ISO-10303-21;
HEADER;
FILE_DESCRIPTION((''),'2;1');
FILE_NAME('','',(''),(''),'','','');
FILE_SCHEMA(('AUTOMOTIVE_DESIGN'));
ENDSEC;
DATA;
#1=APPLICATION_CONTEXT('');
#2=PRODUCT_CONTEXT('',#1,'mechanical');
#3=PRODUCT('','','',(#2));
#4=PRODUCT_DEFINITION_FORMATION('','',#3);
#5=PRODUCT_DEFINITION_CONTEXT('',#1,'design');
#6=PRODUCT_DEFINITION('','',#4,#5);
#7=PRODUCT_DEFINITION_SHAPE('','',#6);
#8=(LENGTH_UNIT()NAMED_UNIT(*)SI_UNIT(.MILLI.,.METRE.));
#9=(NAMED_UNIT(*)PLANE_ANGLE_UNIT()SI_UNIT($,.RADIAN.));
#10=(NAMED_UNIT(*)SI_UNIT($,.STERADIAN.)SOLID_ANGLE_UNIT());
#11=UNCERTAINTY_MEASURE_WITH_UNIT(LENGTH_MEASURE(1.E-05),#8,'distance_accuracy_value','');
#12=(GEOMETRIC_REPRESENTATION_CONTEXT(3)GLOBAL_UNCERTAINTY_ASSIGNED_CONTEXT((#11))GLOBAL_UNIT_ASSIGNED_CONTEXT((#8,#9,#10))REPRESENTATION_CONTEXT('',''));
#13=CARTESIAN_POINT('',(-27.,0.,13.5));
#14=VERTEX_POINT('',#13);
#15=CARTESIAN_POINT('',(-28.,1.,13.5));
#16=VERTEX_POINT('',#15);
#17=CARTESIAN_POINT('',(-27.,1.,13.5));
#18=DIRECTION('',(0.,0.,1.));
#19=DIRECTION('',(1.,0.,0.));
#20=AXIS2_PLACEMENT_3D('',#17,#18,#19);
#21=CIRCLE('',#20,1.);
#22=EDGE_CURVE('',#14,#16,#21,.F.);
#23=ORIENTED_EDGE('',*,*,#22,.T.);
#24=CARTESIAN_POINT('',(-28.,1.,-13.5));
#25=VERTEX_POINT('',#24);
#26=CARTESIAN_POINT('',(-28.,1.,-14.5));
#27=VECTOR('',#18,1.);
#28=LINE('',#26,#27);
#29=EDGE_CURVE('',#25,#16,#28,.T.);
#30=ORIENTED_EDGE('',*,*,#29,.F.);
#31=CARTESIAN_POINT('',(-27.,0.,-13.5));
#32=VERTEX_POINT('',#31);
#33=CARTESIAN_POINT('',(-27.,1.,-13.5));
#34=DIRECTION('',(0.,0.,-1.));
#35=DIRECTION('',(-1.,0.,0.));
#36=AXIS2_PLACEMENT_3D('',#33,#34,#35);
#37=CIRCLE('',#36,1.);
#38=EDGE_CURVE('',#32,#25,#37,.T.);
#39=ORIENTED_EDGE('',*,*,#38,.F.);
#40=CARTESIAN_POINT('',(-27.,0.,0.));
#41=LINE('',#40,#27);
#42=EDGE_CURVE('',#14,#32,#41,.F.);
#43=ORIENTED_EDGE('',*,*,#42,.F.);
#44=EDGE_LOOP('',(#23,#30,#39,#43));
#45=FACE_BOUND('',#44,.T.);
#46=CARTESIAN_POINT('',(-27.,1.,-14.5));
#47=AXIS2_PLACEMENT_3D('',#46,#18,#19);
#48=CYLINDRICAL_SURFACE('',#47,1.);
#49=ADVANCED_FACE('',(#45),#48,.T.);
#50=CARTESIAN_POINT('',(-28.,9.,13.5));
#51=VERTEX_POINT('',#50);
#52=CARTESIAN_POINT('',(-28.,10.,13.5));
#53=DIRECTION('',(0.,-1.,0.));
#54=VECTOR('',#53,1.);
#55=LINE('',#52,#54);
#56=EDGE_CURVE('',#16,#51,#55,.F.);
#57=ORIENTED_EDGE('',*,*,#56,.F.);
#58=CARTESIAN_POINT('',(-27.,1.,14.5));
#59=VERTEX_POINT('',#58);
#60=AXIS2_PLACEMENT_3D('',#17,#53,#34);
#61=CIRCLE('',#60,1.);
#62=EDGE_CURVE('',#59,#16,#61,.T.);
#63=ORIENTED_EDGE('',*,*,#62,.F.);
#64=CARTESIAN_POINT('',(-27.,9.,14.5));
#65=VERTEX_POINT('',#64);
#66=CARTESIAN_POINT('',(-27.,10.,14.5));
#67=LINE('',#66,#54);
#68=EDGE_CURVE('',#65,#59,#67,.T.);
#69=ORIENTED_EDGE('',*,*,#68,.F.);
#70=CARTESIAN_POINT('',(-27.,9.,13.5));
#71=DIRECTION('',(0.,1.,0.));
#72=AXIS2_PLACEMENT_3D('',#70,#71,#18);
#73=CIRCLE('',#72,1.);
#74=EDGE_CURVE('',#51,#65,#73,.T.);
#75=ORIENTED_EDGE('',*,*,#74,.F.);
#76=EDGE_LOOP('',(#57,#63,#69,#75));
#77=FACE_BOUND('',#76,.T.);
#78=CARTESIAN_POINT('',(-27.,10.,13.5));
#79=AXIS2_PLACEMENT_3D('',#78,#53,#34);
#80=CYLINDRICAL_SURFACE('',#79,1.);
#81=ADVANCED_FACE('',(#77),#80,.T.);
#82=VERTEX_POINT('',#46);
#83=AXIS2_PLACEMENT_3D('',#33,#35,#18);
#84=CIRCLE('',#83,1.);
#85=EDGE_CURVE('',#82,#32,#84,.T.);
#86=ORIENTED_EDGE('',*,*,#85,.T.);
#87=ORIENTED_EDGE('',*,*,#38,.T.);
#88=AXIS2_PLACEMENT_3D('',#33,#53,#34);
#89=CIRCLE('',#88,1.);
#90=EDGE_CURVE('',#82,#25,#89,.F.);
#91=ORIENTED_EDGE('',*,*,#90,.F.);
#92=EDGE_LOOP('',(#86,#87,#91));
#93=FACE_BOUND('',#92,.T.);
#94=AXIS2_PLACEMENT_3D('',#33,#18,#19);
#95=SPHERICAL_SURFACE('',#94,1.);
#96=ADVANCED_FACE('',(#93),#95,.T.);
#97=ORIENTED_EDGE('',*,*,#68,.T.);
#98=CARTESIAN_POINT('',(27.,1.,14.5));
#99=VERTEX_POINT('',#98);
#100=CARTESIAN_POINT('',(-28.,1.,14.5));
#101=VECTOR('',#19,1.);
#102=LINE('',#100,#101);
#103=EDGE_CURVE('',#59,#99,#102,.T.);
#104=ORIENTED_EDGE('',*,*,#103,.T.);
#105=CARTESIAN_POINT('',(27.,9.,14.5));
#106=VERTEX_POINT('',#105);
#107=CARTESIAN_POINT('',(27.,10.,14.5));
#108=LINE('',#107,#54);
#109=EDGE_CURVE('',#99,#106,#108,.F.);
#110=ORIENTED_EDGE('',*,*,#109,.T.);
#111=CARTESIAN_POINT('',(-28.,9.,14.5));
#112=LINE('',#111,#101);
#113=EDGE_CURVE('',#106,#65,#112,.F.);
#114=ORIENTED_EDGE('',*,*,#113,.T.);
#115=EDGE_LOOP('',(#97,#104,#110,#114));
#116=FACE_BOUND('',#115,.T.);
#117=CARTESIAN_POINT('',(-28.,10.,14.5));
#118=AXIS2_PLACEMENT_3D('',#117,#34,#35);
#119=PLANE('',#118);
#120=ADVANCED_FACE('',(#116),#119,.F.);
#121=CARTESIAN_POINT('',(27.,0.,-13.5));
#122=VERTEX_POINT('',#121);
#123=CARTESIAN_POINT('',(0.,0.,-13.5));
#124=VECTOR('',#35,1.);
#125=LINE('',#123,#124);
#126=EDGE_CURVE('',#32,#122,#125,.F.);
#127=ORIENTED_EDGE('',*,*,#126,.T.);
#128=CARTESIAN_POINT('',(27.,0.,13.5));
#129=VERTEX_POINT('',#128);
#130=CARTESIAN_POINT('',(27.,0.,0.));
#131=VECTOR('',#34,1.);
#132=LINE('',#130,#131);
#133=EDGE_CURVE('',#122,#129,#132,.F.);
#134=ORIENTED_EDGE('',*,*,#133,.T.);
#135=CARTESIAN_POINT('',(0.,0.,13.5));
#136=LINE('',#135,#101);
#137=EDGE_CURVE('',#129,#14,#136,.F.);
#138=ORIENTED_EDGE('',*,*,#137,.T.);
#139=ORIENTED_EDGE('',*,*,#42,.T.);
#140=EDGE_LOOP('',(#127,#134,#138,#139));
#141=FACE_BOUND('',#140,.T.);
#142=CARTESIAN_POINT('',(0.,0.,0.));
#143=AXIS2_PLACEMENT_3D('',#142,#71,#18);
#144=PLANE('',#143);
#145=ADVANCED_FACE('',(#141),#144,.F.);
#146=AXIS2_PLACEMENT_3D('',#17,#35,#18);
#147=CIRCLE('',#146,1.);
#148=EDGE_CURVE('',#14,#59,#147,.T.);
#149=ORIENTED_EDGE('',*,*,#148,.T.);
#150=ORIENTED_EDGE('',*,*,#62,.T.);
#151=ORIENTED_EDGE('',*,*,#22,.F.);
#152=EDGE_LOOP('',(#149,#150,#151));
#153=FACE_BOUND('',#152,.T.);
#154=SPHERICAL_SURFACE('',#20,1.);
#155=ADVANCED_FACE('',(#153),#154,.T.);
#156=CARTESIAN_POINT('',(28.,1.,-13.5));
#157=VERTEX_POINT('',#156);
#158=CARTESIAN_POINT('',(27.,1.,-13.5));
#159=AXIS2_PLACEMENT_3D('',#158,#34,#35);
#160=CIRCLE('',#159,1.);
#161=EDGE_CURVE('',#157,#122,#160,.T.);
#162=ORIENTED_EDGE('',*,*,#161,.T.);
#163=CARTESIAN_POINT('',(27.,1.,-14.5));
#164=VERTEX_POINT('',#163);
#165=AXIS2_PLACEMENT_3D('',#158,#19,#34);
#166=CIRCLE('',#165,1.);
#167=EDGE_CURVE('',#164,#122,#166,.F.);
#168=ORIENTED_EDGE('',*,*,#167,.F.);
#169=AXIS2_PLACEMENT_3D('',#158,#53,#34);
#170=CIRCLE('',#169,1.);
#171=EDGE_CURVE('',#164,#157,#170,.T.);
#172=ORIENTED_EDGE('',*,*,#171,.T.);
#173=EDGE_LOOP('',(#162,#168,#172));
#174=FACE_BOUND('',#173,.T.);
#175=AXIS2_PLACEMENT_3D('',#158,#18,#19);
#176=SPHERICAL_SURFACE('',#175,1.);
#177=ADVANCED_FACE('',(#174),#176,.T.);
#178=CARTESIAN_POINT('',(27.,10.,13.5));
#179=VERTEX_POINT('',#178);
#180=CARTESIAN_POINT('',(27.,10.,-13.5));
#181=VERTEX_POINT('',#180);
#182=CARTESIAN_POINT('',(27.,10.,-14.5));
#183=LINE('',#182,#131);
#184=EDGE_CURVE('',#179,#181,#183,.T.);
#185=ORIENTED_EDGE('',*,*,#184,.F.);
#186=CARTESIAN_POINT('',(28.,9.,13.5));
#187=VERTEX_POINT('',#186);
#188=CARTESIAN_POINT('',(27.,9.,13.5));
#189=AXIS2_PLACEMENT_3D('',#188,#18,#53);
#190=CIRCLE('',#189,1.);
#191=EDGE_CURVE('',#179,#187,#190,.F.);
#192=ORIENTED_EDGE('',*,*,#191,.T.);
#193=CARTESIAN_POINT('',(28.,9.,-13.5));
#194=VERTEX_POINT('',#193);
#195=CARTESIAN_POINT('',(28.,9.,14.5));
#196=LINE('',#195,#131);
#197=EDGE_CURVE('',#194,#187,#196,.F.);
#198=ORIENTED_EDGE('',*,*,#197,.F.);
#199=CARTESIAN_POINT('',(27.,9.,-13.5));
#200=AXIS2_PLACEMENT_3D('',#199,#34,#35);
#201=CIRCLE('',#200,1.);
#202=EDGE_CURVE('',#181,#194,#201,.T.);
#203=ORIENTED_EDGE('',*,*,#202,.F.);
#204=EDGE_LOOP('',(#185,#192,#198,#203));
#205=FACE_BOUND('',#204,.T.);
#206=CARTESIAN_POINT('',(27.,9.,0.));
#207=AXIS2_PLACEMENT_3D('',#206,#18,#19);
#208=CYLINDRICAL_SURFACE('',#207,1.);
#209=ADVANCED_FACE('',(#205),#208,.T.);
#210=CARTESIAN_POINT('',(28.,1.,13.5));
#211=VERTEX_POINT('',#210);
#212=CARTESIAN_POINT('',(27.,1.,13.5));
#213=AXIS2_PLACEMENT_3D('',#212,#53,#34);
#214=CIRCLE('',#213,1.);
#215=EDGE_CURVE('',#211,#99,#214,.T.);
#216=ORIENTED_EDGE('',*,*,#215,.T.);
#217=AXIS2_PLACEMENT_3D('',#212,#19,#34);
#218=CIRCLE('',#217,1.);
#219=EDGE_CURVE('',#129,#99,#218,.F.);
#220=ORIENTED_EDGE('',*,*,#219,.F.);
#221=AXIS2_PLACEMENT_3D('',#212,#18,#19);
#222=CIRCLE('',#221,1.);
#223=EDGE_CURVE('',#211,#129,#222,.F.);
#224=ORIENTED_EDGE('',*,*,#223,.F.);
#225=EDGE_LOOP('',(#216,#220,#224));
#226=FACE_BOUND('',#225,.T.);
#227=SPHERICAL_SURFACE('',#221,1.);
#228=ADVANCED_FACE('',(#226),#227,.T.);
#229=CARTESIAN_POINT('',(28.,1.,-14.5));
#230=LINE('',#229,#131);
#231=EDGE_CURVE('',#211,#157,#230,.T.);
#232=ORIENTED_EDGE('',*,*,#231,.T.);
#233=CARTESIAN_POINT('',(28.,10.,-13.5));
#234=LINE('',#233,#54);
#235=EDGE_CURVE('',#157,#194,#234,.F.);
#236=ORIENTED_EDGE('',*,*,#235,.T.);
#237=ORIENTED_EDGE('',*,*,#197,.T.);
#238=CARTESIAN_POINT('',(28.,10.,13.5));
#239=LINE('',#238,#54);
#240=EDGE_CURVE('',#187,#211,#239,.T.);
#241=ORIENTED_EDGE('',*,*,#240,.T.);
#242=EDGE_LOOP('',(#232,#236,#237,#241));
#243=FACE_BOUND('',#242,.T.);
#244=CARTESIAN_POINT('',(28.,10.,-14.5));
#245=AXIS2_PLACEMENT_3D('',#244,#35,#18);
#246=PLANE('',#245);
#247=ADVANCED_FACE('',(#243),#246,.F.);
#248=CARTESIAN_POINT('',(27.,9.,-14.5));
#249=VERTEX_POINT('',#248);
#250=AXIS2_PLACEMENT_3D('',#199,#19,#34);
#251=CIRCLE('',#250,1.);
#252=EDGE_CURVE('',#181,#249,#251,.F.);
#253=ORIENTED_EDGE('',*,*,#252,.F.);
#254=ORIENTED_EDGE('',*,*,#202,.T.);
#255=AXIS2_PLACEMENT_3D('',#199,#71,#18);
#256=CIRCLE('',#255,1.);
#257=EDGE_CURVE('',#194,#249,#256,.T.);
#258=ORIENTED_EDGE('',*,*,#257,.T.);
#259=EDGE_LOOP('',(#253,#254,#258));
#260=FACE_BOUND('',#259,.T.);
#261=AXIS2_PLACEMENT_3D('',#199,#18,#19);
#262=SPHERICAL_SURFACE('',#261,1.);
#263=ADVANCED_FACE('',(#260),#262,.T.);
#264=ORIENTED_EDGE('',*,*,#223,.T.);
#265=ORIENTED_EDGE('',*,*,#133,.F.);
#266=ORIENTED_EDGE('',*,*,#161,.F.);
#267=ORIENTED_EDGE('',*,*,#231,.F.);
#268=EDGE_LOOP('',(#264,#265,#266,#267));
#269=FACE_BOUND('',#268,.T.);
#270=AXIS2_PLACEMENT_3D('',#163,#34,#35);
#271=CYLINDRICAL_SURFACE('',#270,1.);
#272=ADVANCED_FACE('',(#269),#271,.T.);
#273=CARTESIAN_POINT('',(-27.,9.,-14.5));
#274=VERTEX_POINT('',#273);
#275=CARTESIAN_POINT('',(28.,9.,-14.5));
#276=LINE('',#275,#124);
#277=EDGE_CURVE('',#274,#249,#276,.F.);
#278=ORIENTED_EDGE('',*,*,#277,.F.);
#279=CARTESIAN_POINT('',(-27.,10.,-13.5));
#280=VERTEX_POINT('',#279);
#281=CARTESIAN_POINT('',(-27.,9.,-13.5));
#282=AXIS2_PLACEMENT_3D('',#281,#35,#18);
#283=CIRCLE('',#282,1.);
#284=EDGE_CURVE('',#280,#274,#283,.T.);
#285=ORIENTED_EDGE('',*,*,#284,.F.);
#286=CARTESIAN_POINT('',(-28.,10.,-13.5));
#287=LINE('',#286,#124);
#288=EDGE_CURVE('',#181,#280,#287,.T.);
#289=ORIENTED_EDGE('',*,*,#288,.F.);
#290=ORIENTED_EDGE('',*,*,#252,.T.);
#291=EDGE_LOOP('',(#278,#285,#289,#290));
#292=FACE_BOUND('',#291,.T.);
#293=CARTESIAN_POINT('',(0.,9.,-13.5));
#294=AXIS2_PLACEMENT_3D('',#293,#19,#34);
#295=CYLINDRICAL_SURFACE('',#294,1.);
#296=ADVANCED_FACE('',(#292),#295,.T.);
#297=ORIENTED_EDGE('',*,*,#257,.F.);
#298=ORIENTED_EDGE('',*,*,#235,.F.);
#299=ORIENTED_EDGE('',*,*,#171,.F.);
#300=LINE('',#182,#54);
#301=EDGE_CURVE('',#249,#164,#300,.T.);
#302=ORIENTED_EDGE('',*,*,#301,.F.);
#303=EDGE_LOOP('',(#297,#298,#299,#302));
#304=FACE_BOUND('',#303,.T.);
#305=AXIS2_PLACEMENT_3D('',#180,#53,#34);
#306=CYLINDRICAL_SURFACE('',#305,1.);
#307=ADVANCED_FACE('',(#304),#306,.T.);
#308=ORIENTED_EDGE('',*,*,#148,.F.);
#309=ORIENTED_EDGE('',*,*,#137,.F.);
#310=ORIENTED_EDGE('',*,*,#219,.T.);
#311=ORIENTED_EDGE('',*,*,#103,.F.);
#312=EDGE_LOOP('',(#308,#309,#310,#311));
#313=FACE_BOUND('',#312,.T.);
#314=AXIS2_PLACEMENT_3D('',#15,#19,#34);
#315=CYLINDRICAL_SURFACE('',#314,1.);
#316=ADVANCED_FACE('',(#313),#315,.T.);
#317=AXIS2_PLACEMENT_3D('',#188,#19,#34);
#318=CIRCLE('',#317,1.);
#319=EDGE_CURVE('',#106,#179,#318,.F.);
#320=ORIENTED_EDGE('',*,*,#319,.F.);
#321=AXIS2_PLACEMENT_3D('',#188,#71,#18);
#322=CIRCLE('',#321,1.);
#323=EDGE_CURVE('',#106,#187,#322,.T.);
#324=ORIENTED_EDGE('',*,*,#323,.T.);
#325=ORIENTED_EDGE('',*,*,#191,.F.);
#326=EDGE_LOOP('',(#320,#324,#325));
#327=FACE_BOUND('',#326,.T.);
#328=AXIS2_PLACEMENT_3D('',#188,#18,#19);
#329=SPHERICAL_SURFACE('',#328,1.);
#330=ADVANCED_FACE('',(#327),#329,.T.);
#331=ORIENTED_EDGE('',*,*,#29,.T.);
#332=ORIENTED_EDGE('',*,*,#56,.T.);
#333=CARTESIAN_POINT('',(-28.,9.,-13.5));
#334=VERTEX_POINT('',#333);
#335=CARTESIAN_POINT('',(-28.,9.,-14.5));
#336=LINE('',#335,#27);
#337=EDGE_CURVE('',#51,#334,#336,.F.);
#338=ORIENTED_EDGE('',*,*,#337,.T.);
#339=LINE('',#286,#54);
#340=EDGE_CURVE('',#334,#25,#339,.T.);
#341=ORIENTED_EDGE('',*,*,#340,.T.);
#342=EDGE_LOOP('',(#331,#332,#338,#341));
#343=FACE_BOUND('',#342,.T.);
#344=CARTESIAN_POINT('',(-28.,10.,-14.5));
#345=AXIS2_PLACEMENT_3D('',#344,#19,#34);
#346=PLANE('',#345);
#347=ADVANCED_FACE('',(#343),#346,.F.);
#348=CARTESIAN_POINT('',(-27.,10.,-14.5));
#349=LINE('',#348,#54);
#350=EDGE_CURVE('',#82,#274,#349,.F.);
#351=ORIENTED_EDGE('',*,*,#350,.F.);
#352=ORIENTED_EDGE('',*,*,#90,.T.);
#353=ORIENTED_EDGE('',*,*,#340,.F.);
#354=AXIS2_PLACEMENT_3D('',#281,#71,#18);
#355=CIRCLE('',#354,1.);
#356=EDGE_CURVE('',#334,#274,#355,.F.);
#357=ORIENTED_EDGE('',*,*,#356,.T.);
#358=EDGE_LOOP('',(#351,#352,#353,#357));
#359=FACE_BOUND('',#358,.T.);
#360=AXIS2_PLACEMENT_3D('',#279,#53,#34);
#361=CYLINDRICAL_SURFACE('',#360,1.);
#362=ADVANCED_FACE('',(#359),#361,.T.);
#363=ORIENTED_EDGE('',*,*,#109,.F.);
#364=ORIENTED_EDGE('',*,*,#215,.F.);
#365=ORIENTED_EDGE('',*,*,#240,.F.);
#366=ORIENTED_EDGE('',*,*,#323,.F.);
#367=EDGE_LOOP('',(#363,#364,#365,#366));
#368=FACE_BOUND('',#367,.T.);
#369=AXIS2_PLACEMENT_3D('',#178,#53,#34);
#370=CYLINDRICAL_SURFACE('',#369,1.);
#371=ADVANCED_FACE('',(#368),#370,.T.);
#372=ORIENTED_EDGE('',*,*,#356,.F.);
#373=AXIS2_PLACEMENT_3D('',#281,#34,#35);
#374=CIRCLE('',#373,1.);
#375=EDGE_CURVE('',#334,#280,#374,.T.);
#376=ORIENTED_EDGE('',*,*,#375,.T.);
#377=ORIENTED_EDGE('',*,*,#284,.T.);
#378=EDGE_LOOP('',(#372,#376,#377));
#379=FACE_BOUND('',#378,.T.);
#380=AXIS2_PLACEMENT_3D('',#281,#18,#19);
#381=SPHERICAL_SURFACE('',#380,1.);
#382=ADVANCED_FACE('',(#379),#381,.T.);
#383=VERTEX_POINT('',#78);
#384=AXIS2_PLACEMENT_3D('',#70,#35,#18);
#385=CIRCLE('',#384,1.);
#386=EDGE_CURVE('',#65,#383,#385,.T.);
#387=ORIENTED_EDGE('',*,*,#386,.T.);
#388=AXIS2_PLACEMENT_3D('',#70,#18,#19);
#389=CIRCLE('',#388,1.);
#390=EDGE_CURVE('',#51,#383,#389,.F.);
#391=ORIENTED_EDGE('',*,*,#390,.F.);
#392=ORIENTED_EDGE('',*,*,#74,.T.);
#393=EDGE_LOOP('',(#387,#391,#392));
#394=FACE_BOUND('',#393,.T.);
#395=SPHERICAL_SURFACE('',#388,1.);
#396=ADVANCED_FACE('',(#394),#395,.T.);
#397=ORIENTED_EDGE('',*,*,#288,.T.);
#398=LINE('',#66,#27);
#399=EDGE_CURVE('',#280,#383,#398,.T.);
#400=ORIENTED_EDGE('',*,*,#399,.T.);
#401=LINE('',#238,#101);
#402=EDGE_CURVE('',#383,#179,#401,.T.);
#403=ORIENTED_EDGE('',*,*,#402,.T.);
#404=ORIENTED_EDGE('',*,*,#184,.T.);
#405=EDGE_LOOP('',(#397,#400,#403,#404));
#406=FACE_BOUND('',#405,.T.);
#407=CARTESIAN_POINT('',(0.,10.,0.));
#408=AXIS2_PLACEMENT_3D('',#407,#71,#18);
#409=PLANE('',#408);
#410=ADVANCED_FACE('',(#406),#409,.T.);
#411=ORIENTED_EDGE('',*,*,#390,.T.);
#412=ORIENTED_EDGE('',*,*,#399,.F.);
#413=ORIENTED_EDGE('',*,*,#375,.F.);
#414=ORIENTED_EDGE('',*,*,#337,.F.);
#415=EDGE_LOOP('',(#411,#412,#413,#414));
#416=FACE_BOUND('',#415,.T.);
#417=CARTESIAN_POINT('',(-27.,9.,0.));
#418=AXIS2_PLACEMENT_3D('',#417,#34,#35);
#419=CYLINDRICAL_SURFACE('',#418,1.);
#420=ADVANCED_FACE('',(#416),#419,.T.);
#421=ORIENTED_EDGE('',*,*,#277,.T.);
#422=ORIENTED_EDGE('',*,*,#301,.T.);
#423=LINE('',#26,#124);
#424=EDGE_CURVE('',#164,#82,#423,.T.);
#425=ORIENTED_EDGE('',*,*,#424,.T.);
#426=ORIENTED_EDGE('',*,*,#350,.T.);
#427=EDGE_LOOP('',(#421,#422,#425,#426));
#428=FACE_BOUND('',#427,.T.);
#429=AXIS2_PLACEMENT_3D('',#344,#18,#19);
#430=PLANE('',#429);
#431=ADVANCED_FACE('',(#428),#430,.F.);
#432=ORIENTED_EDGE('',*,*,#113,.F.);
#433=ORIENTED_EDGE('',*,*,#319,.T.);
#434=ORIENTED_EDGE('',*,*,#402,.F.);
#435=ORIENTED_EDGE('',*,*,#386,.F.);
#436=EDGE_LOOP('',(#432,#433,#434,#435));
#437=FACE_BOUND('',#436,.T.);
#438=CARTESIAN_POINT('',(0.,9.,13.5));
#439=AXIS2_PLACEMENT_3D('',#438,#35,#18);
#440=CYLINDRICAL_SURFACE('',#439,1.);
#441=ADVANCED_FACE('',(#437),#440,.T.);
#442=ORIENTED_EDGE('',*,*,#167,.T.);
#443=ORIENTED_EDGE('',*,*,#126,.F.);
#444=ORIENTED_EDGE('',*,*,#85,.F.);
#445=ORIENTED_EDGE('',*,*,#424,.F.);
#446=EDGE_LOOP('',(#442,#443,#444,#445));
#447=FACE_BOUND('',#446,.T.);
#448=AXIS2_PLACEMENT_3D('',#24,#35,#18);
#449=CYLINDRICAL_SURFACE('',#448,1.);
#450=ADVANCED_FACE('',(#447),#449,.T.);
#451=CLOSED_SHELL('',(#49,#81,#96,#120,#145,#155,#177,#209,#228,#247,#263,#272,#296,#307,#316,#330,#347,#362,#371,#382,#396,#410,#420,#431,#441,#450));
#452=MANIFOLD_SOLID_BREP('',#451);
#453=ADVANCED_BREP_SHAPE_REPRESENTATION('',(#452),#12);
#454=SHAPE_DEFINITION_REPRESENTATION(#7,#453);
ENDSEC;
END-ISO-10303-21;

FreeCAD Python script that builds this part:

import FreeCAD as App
import Part
import Sketcher
Q = App.Units.Quantity

doc = App.newDocument("Part")
params = doc.addObject("Spreadsheet::Sheet", "Params")
for row, (alias, value) in enumerate([
    ("sketch1_width", "56 mm"),
    ("sketch1_height", "29 mm"),
    ("pad1_length", "10 mm"),
    ("fillet_radius", "1 mm"),
], start=1):
    params.set(f"A{row}", alias)
    params.set(f"B{row}", "=" + value)
    params.setAlias(f"B{row}", alias)

body = doc.addObject("PartDesign::Body", "Body")

# Sketch on XZ plane
sketch1 = body.newObject("Sketcher::SketchObject", "Sketch")
sketch1.AttachmentSupport = (doc.getObject("XZ_Plane"), [""])
sketch1.MapMode = "FlatFace"
sketch1.addGeometry([
    Part.LineSegment(App.Vector(-28, -14.5, 0), App.Vector(-28, 14.5, 0)),
    Part.LineSegment(App.Vector(-28, 14.5, 0), App.Vector(28, 14.5, 0)),
    Part.LineSegment(App.Vector(28, 14.5, 0), App.Vector(28, -14.5, 0)),
    Part.LineSegment(App.Vector(28, -14.5, 0), App.Vector(-28, -14.5, 0)),
], False)
sketch1.addConstraint([
    Sketcher.Constraint("Coincident", 0, 2, 1, 1),
    Sketcher.Constraint("Coincident", 1, 2, 2, 1),
    Sketcher.Constraint("Coincident", 2, 2, 3, 1),
    Sketcher.Constraint("Coincident", 3, 2, 0, 1),
    Sketcher.Constraint("Vertical", 0),
    Sketcher.Constraint("Horizontal", 1),
    Sketcher.Constraint("Vertical", 2),
    Sketcher.Constraint("Horizontal", 3),
    Sketcher.Constraint("Symmetric", 0, 2, 2, 2, -1, 1),
    Sketcher.Constraint("DistanceX", 1, 1, 1, 2, Q("56 mm")),
    Sketcher.Constraint("DistanceY", 0, 1, 0, 2, Q("29 mm")),
])
sketch1.setExpression("Constraints[9]", "Params.sketch1_width")
sketch1.setExpression("Constraints[10]", "Params.sketch1_height")
pad1 = body.newObject("PartDesign::Pad", "Pad")
pad1.Profile = sketch1
pad1.setExpression("Length", "Params.pad1_length")
pad1.Reversed = True
doc.recompute()

fillet = body.newObject("PartDesign::Fillet", "Fillet")
fillet.Base = (pad1, ["Edge1"])
fillet.UseAllEdges = True
fillet.setExpression("Radius", "Params.fillet_radius")

doc.recompute()
